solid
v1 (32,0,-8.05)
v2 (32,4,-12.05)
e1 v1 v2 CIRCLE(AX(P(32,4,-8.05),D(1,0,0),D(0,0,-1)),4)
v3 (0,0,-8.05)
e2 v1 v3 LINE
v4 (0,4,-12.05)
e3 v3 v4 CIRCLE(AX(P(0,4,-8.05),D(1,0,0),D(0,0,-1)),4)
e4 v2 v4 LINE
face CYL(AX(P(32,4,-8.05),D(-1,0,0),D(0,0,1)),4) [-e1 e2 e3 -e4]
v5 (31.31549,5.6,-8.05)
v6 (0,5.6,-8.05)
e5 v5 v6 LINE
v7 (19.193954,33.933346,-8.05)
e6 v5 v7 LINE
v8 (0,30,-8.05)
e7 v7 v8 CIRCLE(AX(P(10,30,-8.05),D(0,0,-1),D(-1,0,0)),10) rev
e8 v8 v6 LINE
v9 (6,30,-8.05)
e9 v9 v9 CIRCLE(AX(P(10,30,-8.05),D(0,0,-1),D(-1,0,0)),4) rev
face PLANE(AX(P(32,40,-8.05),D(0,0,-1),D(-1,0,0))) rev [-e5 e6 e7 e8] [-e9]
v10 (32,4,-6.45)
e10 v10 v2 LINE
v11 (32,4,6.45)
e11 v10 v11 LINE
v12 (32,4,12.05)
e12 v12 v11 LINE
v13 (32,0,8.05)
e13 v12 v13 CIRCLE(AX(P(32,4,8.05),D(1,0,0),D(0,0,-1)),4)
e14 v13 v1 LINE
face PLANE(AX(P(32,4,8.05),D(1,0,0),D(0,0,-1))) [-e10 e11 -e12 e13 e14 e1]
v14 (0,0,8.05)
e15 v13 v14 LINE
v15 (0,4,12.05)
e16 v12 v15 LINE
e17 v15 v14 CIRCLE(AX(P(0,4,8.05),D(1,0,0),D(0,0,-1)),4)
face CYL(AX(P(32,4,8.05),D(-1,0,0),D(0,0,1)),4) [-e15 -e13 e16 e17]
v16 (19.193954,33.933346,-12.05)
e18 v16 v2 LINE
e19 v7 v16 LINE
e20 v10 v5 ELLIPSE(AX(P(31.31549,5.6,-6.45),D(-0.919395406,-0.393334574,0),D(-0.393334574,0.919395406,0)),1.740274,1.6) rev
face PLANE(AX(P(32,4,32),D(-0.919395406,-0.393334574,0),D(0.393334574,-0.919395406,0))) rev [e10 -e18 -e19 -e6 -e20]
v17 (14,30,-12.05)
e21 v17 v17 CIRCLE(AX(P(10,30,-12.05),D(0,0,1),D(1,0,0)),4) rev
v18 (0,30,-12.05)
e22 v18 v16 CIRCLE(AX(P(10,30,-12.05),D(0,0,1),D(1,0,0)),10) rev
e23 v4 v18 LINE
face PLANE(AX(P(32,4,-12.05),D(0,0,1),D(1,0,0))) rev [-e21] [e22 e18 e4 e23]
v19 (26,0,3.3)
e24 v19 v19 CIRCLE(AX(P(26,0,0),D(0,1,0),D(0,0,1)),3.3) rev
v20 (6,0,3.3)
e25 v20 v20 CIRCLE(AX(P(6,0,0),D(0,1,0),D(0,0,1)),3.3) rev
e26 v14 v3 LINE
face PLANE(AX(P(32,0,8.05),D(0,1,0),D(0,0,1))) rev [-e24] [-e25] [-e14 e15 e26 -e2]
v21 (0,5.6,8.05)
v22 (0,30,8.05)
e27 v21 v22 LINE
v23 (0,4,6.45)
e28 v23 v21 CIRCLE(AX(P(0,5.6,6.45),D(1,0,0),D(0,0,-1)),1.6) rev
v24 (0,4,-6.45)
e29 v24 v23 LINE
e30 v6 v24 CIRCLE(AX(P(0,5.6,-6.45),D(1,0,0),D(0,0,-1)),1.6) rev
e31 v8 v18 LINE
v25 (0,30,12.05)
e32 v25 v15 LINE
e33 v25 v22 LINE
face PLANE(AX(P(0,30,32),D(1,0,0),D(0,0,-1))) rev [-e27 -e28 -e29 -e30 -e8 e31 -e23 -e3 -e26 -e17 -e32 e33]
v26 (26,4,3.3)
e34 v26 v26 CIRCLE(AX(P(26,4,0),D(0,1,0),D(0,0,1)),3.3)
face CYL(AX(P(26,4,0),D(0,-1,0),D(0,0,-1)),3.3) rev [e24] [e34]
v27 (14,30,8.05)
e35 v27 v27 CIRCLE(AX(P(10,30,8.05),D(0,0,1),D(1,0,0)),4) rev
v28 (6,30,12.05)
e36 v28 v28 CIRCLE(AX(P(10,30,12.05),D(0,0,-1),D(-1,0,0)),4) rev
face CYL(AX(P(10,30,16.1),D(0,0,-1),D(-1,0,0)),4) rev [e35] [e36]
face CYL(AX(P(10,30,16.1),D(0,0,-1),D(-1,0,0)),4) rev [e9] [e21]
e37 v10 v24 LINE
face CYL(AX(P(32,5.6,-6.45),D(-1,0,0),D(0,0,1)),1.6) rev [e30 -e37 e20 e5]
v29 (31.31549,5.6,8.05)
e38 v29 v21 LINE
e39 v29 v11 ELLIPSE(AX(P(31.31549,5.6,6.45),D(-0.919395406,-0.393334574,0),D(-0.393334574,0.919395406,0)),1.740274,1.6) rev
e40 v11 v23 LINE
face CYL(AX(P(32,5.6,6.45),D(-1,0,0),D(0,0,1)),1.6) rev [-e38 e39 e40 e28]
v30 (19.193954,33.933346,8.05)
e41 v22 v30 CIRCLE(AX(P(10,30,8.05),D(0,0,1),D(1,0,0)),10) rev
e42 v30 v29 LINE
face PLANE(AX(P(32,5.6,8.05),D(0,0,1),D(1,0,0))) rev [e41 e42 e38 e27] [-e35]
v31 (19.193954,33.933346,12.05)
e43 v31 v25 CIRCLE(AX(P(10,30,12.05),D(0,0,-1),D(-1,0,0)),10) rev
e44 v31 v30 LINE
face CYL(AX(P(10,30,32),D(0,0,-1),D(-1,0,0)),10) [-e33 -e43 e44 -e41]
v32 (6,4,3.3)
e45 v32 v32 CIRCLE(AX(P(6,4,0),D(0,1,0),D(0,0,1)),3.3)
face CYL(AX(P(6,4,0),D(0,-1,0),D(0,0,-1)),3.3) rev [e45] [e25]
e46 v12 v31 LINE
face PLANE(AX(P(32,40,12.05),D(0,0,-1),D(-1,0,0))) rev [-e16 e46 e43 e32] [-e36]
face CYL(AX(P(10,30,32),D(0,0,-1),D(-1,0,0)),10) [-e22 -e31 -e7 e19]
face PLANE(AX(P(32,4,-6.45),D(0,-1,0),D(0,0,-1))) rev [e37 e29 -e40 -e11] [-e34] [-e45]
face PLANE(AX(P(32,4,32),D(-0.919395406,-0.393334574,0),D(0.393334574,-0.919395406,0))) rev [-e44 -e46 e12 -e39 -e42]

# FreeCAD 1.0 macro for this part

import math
import FreeCAD as App
import Part
import Sketcher
Q = App.Units.Quantity

doc = App.newDocument("Part")
params = doc.addObject("Spreadsheet::Sheet", "Params")
for row, (alias, value) in enumerate([
    ("sketch1_radius", "4 mm"),
    ("sketch1_radius2", "1.6 mm"),
    ("sketch1_width", "36 mm"),
    ("sketch1_height", "16.1 mm"),
    ("pad1_length", "32 mm"),
    ("pad1_length2", "32 mm"),
    ("sketch2_radius", "10 mm"),
    ("sketch2_width", "32 mm"),
    ("sketch2_height", "30 mm"),
    ("sketch2_height2", "4 mm"),
    ("sketch2_width2", "96.2 mm"),
    ("sketch3_diameter", "8 mm"),
    ("sketch4_diameter", "6.6 mm"),
    ("sketch5_diameter", "6.6 mm"),
], start=1):
    params.set(f"A{row}", alias)
    params.set(f"B{row}", "=" + value)
    params.setAlias(f"B{row}", alias)

body = doc.addObject("PartDesign::Body", "Body")

sketch1 = body.newObject("Sketcher::SketchObject", "Sketch")
sketch1.AttachmentSupport = (doc.getObject("YZ_Plane"), [""])
sketch1.MapMode = "FlatFace"
sketch1.addGeometry([
    Part.LineSegment(App.Vector(0, 8.1, 0), App.Vector(0, -8.1, 0)),
    Part.ArcOfCircle(Part.Circle(App.Vector(4, -8.1, 0), App.Vector(0, 0, 1), 4), math.radians(180), math.radians(270)),
    Part.LineSegment(App.Vector(4, -12.1, 0), App.Vector(40, -12.1, 0)),
    Part.LineSegment(App.Vector(40, -12.1, 0), App.Vector(40, -8.1, 0)),
    Part.LineSegment(App.Vector(40, -8.1, 0), App.Vector(5.6, -8.1, 0)),
    Part.ArcOfCircle(Part.Circle(App.Vector(5.6, -6.5, 0), App.Vector(0, 0, 1), 1.6), math.radians(180), math.radians(270)),
    Part.LineSegment(App.Vector(4, -6.5, 0), App.Vector(4, 6.5, 0)),
    Part.ArcOfCircle(Part.Circle(App.Vector(5.6, 6.5, 0), App.Vector(0, 0, 1), 1.6), math.radians(90), math.radians(180)),
    Part.LineSegment(App.Vector(5.6, 8.1, 0), App.Vector(40, 8.1, 0)),
    Part.LineSegment(App.Vector(40, 8.1, 0), App.Vector(40, 12.1, 0)),
    Part.LineSegment(App.Vector(40, 12.1, 0), App.Vector(4, 12.1, 0)),
    Part.ArcOfCircle(Part.Circle(App.Vector(4, 8.1, 0), App.Vector(0, 0, 1), 4), math.radians(90), math.radians(180)),
], False)
sketch1.addConstraint([
    Sketcher.Constraint("Tangent", 0, 2, 1, 1),
    Sketcher.Constraint("Tangent", 1, 2, 2, 1),
    Sketcher.Constraint("Coincident", 2, 2, 3, 1),
    Sketcher.Constraint("Coincident", 3, 2, 4, 1),
    Sketcher.Constraint("Tangent", 4, 2, 5, 2),
    Sketcher.Constraint("Tangent", 5, 1, 6, 1),
    Sketcher.Constraint("Tangent", 6, 2, 7, 2),
    Sketcher.Constraint("Tangent", 7, 1, 8, 1),
    Sketcher.Constraint("Coincident", 8, 2, 9, 1),
    Sketcher.Constraint("Coincident", 9, 2, 10, 1),
    Sketcher.Constraint("Tangent", 10, 2, 11, 1),
    Sketcher.Constraint("Tangent", 11, 2, 0, 1),
    Sketcher.Constraint("Vertical", 0),
    Sketcher.Constraint("Horizontal", 2),
    Sketcher.Constraint("Vertical", 3),
    Sketcher.Constraint("Horizontal", 4),
    Sketcher.Constraint("Vertical", 6),
    Sketcher.Constraint("Horizontal", 8),
    Sketcher.Constraint("Vertical", 9),
    Sketcher.Constraint("Horizontal", 10),
    Sketcher.Constraint("Equal", 5, 7),
    Sketcher.Constraint("Equal", 1, 11),
    Sketcher.Constraint("Symmetric", 0, 2, 11, 2, -1, 1),
    Sketcher.Constraint("Symmetric", 3, 2, 8, 2, -1),
    Sketcher.Constraint("Horizontal", 0, 2, 3, 2),
    Sketcher.Constraint("Vertical", 1, 2, 5, 1),
    Sketcher.Constraint("Radius", 1, Q("4 mm")),
    Sketcher.Constraint("Radius", 5, Q("1.6 mm")),
    Sketcher.Constraint("DistanceX", 2, 1, 2, 2, Q("36 mm")),
    Sketcher.Constraint("DistanceY", 0, 2, 0, 1, Q("16.1 mm")),
])
sketch1.setExpression("Constraints[26]", "Params.sketch1_radius")
sketch1.setExpression("Constraints[27]", "Params.sketch1_radius2")
sketch1.setExpression("Constraints[28]", "Params.sketch1_width")
sketch1.setExpression("Constraints[29]", "Params.sketch1_height")
pad1 = body.newObject("PartDesign::Pad", "Pad")
pad1.Profile = sketch1
pad1.Type = "TwoLengths"
pad1.setExpression("Length", "Params.pad1_length")
pad1.setExpression("Length2", "Params.pad1_length2")

sketch2 = body.newObject("Sketcher::SketchObject", "Sketch001")
sketch2.AttachmentSupport = (doc.getObject("XY_Plane"), [""])
sketch2.MapMode = "FlatFace"
sketch2.addGeometry([
    Part.LineSegment(App.Vector(-48.1, 60, 0), App.Vector(-48.1, -16.1, 0)),
    Part.LineSegment(App.Vector(-48.1, -16.1, 0), App.Vector(48.1, -16.1, 0)),
    Part.LineSegment(App.Vector(48.1, -16.1, 0), App.Vector(48.1, 60, 0)),
    Part.LineSegment(App.Vector(48.1, 60, 0), App.Vector(-48.1, 60, 0)),
    Part.LineSegment(App.Vector(0, 0, 0), App.Vector(0, 30, 0)),
    Part.ArcOfCircle(Part.Circle(App.Vector(10, 30, 0), App.Vector(0, 0, 1), 10), math.radians(23), math.radians(180)),
    Part.LineSegment(App.Vector(19.2, 33.9, 0), App.Vector(32, 4, 0)),
    Part.LineSegment(App.Vector(32, 4, 0), App.Vector(32, 0, 0)),
    Part.LineSegment(App.Vector(32, 0, 0), App.Vector(0, 0, 0)),
], False)
sketch2.addConstraint([
    Sketcher.Constraint("Coincident", 0, 2, 1, 1),
    Sketcher.Constraint("Coincident", 1, 2, 2, 1),
    Sketcher.Constraint("Coincident", 2, 2, 3, 1),
    Sketcher.Constraint("Coincident", 3, 2, 0, 1),
    Sketcher.Constraint("Tangent", 4, 2, 5, 2),
    Sketcher.Constraint("Tangent", 5, 1, 6, 1),
    Sketcher.Constraint("Coincident", 6, 2, 7, 1),
    Sketcher.Constraint("Coincident", 7, 2, 8, 1),
    Sketcher.Constraint("Coincident", 8, 2, 4, 1),
    Sketcher.Constraint("Vertical", 0),
    Sketcher.Constraint("Horizontal", 1),
    Sketcher.Constraint("Vertical", 2),
    Sketcher.Constraint("Horizontal", 3),
    Sketcher.Constraint("Vertical", 4),
    Sketcher.Constraint("Vertical", 7),
    Sketcher.Constraint("Horizontal", 8),
    Sketcher.Constraint("Coincident", 8, 2, -1, 1),
    Sketcher.Constraint("Radius", 5, Q("10 mm")),
    Sketcher.Constraint("DistanceX", 8, 2, 8, 1, Q("32 mm")),
    Sketcher.Constraint("DistanceY", 4, 1, 4, 2, Q("30 mm")),
    Sketcher.Constraint("DistanceY", 7, 2, 7, 1, Q("4 mm")),
    Sketcher.Constraint("DistanceX", 1, 1, 1, 2, Q("96.2 mm")),
    Sketcher.Constraint("DistanceY", 0, 2, 0, 1, Q("76.1 mm")),
    Sketcher.Constraint("DistanceY", -1, 1, 2, 2, Q("60 mm")),
    Sketcher.Constraint("DistanceX", 0, 2, -1, 1, Q("48.1 mm")),
])
sketch2.setExpression("Constraints[17]", "Params.sketch2_radius")
sketch2.setExpression("Constraints[18]", "Params.sketch2_width")
sketch2.setExpression("Constraints[19]", "Params.sketch2_height")
sketch2.setExpression("Constraints[20]", "Params.sketch2_height2")
sketch2.setExpression("Constraints[21]", "Params.sketch2_width2")
pocket1 = body.newObject("PartDesign::Pocket", "Pocket")
pocket1.Profile = sketch2
pocket1.Type = "ThroughAll"
pocket1.Midplane = True

sketch3 = body.newObject("Sketcher::SketchObject", "Sketch002")
sketch3.AttachmentSupport = (doc.getObject("XY_Plane"), [""])
sketch3.MapMode = "FlatFace"
sketch3.addGeometry(Part.Circle(App.Vector(10, 30, 0), App.Vector(0, 0, 1), 4), False)
sketch3.addConstraint([
    Sketcher.Constraint("Diameter", 0, Q("8 mm")),
    Sketcher.Constraint("DistanceX", -1, 1, 0, 3, Q("10 mm")),
    Sketcher.Constraint("DistanceY", -1, 1, 0, 3, Q("30 mm")),
])
sketch3.setExpression("Constraints[0]", "Params.sketch3_diameter")
pocket2 = body.newObject("PartDesign::Pocket", "Pocket001")
pocket2.Profile = sketch3
pocket2.Type = "ThroughAll"
pocket2.Midplane = True

sketch4 = body.newObject("Sketcher::SketchObject", "Sketch003")
sketch4.AttachmentSupport = (doc.getObject("XZ_Plane"), [""])
sketch4.MapMode = "FlatFace"
sketch4.addGeometry(Part.Circle(App.Vector(6, 0, 0), App.Vector(0, 0, 1), 3.3), False)
sketch4.addConstraint([
    Sketcher.Constraint("PointOnObject", 0, 3, -1),
    Sketcher.Constraint("Diameter", 0, Q("6.6 mm")),
    Sketcher.Constraint("DistanceX", -1, 1, 0, 3, Q("6 mm")),
])
sketch4.setExpression("Constraints[1]", "Params.sketch4_diameter")
pocket3 = body.newObject("PartDesign::Pocket", "Pocket002")
pocket3.Profile = sketch4
pocket3.Type = "ThroughAll"
pocket3.Midplane = True

sketch5 = body.newObject("Sketcher::SketchObject", "Sketch004")
sketch5.AttachmentSupport = (doc.getObject("XZ_Plane"), [""])
sketch5.MapMode = "FlatFace"
sketch5.addGeometry(Part.Circle(App.Vector(26, 0, 0), App.Vector(0, 0, 1), 3.3), False)
sketch5.addConstraint([
    Sketcher.Constraint("PointOnObject", 0, 3, -1),
    Sketcher.Constraint("Diameter", 0, Q("6.6 mm")),
    Sketcher.Constraint("DistanceX", -1, 1, 0, 3, Q("26 mm")),
])
sketch5.setExpression("Constraints[1]", "Params.sketch5_diameter")
pocket4 = body.newObject("PartDesign::Pocket", "Pocket003")
pocket4.Profile = sketch5
pocket4.Type = "ThroughAll"
pocket4.Midplane = True

doc.recompute()
